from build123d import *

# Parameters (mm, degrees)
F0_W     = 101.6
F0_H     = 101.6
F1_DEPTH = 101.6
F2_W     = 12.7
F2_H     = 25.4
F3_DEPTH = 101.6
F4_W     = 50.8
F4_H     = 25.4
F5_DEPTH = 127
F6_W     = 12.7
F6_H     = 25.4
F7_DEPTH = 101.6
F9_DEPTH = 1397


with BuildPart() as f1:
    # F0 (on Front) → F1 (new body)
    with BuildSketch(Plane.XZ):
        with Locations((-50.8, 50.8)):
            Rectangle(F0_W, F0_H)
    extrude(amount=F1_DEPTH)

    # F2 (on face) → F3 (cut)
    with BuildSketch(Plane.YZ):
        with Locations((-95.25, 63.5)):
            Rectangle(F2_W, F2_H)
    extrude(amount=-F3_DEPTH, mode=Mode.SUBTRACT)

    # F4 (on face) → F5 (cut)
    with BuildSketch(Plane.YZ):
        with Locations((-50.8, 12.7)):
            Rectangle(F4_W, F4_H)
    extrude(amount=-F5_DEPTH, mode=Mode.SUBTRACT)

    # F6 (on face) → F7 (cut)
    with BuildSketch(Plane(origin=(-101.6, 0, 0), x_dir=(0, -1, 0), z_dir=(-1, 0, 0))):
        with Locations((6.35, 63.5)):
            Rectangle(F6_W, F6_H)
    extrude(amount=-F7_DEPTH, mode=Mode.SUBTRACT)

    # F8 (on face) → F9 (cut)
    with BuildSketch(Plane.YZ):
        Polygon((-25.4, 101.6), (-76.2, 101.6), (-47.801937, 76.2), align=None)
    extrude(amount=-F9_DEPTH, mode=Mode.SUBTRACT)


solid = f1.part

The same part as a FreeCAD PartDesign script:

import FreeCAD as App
import Part
import Sketcher
Q = App.Units.Quantity

doc = App.newDocument("Part")
body = doc.addObject("PartDesign::Body", "Body")

sketch1 = body.newObject("Sketcher::SketchObject", "Sketch")
sketch1.AttachmentSupport = (doc.getObject("XZ_Plane"), [""])
sketch1.MapMode = "FlatFace"
sketch1.addGeometry([
    Part.LineSegment(App.Vector(-102, 102, 0), App.Vector(-102, 0, 0)),
    Part.LineSegment(App.Vector(-102, 0, 0), App.Vector(0, 0, 0)),
    Part.LineSegment(App.Vector(0, 0, 0), App.Vector(0, 102, 0)),
    Part.LineSegment(App.Vector(0, 102, 0), App.Vector(-102, 102, 0)),
], False)
sketch1.addConstraint([
    Sketcher.Constraint("Coincident", 0, 2, 1, 1),
    Sketcher.Constraint("Coincident", 1, 2, 2, 1),
    Sketcher.Constraint("Coincident", 2, 2, 3, 1),
    Sketcher.Constraint("Coincident", 3, 2, 0, 1),
    Sketcher.Constraint("Vertical", 0),
    Sketcher.Constraint("Horizontal", 1),
    Sketcher.Constraint("Vertical", 2),
    Sketcher.Constraint("Horizontal", 3),
    Sketcher.Constraint("Coincident", 1, 2, -1, 1),
    Sketcher.Constraint("Equal", 3, 0),
    Sketcher.Constraint("DistanceX", 1, 1, 1, 2, Q("4 in")),
])
pad1 = body.newObject("PartDesign::Pad", "Pad")
pad1.Profile = sketch1
pad1.Length = Q("4 in")

sketch2 = body.newObject("Sketcher::SketchObject", "Sketch001")
sketch2.AttachmentSupport = (doc.getObject("YZ_Plane"), [""])
sketch2.MapMode = "FlatFace"
sketch2.addGeometry([
    Part.LineSegment(App.Vector(-102, 76, 0), App.Vector(-102, 51, 0)),
    Part.LineSegment(App.Vector(-102, 51, 0), App.Vector(-89, 51, 0)),
    Part.LineSegment(App.Vector(-89, 51, 0), App.Vector(-89, 76, 0)),
    Part.LineSegment(App.Vector(-89, 76, 0), App.Vector(-102, 76, 0)),
], False)
sketch2.addConstraint([
    Sketcher.Constraint("Coincident", 0, 2, 1, 1),
    Sketcher.Constraint("Coincident", 1, 2, 2, 1),
    Sketcher.Constraint("Coincident", 2, 2, 3, 1),
    Sketcher.Constraint("Coincident", 3, 2, 0, 1),
    Sketcher.Constraint("Vertical", 0),
    Sketcher.Constraint("Horizontal", 1),
    Sketcher.Constraint("Vertical", 2),
    Sketcher.Constraint("Horizontal", 3),
    Sketcher.Constraint("DistanceY", 0, 2, 0, 1, Q("1 in")),
    Sketcher.Constraint("DistanceX", 1, 1, 1, 2, Q("0.5 in")),
    Sketcher.Constraint("DistanceX", 0, 2, -1, 1, Q("4 in")),
    Sketcher.Constraint("DistanceY", -1, 1, 0, 2, Q("2 in")),
])
pocket1 = body.newObject("PartDesign::Pocket", "Pocket")
pocket1.Profile = sketch2
pocket1.Length = Q("4 in")

sketch3 = body.newObject("Sketcher::SketchObject", "Sketch002")
sketch3.AttachmentSupport = (doc.getObject("YZ_Plane"), [""])
sketch3.MapMode = "FlatFace"
sketch3.addGeometry([
    Part.LineSegment(App.Vector(-76, 25, 0), App.Vector(-76, 0, 0)),
    Part.LineSegment(App.Vector(-76, 0, 0), App.Vector(-25, 0, 0)),
    Part.LineSegment(App.Vector(-25, 0, 0), App.Vector(-25, 25, 0)),
    Part.LineSegment(App.Vector(-25, 25, 0), App.Vector(-76, 25, 0)),
], False)
sketch3.addConstraint([
    Sketcher.Constraint("Coincident", 0, 2, 1, 1),
    Sketcher.Constraint("Coincident", 1, 2, 2, 1),
    Sketcher.Constraint("Coincident", 2, 2, 3, 1),
    Sketcher.Constraint("Coincident", 3, 2, 0, 1),
    Sketcher.Constraint("Vertical", 0),
    Sketcher.Constraint("Horizontal", 1),
    Sketcher.Constraint("Vertical", 2),
    Sketcher.Constraint("Horizontal", 3),
    Sketcher.Constraint("PointOnObject", 0, 2, -1),
    Sketcher.Constraint("DistanceX", 1, 1, 1, 2, Q("2 in")),
    Sketcher.Constraint("DistanceY", 0, 2, 0, 1, Q("1 in")),
    Sketcher.Constraint("DistanceX", 0, 2, -1, 1, Q("3 in")),
])
pocket2 = body.newObject("PartDesign::Pocket", "Pocket001")
pocket2.Profile = sketch3
pocket2.Length = Q("5 in")

sketch4 = body.newObject("Sketcher::SketchObject", "Sketch003")
sketch4.AttachmentSupport = (doc.getObject("YZ_Plane"), [""])
sketch4.MapMode = "FlatFace"
sketch4.AttachmentOffset = App.Placement(App.Vector(0, 0, -4 * 25.4), App.Rotation())
sketch4.addGeometry([
    Part.LineSegment(App.Vector(0, 76, 0), App.Vector(0, 51, 0)),
    Part.LineSegment(App.Vector(0, 51, 0), App.Vector(-13, 51, 0)),
    Part.LineSegment(App.Vector(-13, 51, 0), App.Vector(-13, 76, 0)),
    Part.LineSegment(App.Vector(-13, 76, 0), App.Vector(0, 76, 0)),
], False)
sketch4.addConstraint([
    Sketcher.Constraint("Coincident", 0, 2, 1, 1),
    Sketcher.Constraint("Coincident", 1, 2, 2, 1),
    Sketcher.Constraint("Coincident", 2, 2, 3, 1),
    Sketcher.Constraint("Coincident", 3, 2, 0, 1),
    Sketcher.Constraint("Vertical", 0),
    Sketcher.Constraint("Horizontal", 1),
    Sketcher.Constraint("Vertical", 2),
    Sketcher.Constraint("Horizontal", 3),
    Sketcher.Constraint("PointOnObject", 0, 2, -2),
    Sketcher.Constraint("DistanceY", 0, 2, 0, 1, Q("1 in")),
    Sketcher.Constraint("DistanceX", 1, 2, 1, 1, Q("0.5 in")),
    Sketcher.Constraint("DistanceY", -1, 1, 0, 2, Q("2 in")),
])
pocket3 = body.newObject("PartDesign::Pocket", "Pocket002")
pocket3.Profile = sketch4
pocket3.Length = Q("4 in")
pocket3.Reversed = True

sketch5 = body.newObject("Sketcher::SketchObject", "Sketch004")
sketch5.AttachmentSupport = (doc.getObject("YZ_Plane"), [""])
sketch5.MapMode = "FlatFace"
sketch5.addGeometry([
    Part.LineSegment(App.Vector(-25, 102, 0), App.Vector(-76, 102, 0)),
    Part.LineSegment(App.Vector(-76, 102, 0), App.Vector(-48, 76, 0)),
    Part.LineSegment(App.Vector(-48, 76, 0), App.Vector(-25, 102, 0)),
], False)
sketch5.addConstraint([
    Sketcher.Constraint("Coincident", 0, 2, 1, 1),
    Sketcher.Constraint("Coincident", 1, 2, 2, 1),
    Sketcher.Constraint("Coincident", 2, 2, 0, 1),
    Sketcher.Constraint("Horizontal", 0),
    Sketcher.Constraint("DistanceX", 0, 2, 0, 1, Q("2 in")),
    Sketcher.Constraint("DistanceX", 0, 2, -1, 1, Q("3 in")),
    Sketcher.Constraint("DistanceY", -1, 1, 0, 2, Q("4 in")),
    Sketcher.Constraint("DistanceY", -1, 1, 1, 2, Q("3 in")),
    Sketcher.Constraint("Distance", 1, Q("1.5 in")),
])
pocket4 = body.newObject("PartDesign::Pocket", "Pocket003")
pocket4.Profile = sketch5
pocket4.Length = Q("55 in")

doc.recompute()
